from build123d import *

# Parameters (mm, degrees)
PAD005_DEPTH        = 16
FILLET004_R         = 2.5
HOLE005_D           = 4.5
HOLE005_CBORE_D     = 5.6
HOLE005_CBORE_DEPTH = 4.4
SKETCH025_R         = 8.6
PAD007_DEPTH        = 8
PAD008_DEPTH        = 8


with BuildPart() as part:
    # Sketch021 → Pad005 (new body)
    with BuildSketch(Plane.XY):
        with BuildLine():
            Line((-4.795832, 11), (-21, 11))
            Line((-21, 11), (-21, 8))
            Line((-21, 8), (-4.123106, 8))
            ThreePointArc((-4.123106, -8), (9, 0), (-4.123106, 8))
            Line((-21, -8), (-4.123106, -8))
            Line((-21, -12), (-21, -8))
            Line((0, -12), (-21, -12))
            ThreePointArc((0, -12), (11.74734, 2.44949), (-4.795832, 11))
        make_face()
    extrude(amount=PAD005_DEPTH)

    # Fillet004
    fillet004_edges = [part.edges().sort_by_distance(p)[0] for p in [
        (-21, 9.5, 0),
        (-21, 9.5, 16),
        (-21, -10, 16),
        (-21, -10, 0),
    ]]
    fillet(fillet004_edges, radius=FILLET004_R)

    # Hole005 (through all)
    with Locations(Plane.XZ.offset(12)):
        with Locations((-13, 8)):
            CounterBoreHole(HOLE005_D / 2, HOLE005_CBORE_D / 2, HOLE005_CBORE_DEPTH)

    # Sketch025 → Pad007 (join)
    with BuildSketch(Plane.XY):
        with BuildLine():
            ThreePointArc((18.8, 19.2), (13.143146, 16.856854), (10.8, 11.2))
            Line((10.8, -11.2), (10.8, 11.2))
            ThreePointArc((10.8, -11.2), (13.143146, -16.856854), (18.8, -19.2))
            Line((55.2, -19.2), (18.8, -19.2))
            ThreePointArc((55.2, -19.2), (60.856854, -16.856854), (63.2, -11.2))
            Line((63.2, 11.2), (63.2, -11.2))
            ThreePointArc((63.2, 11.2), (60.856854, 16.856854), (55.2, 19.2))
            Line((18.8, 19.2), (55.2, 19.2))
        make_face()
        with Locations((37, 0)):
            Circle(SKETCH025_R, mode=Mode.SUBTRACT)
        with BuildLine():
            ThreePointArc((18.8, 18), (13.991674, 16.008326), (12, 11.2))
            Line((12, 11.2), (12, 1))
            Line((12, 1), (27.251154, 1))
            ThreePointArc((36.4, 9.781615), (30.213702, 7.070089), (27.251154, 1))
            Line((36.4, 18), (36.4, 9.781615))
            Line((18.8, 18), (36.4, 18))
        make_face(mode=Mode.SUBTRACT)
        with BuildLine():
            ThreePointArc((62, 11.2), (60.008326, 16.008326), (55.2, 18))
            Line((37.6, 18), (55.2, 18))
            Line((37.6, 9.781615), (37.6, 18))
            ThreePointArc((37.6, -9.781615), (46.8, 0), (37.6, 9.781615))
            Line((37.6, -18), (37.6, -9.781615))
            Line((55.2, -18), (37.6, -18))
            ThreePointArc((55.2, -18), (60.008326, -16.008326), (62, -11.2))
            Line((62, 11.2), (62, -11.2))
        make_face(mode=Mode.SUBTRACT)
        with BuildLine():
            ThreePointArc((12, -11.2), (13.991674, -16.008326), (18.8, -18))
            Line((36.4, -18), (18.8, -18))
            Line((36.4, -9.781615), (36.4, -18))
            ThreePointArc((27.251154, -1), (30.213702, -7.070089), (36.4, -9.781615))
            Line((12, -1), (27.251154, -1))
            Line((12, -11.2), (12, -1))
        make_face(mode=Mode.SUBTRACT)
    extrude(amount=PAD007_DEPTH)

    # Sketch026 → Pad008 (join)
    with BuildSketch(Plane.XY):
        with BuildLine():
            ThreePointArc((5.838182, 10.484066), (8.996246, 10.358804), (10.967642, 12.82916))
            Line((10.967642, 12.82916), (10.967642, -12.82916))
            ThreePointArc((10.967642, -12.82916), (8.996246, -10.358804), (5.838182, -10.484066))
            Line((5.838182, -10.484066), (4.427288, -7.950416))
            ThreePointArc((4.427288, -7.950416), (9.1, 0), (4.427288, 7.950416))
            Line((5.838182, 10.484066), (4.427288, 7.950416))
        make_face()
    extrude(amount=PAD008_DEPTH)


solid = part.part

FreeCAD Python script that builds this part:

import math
import FreeCAD as App
import Part
import Sketcher

V = App.Vector


def edges_at(feature, points):
    """Names of the edges that pass closest to the given points."""
    edges = feature.Shape.Edges
    near = lambda p: min(range(len(edges)), key=lambda i: edges[i].distToShape(Part.Vertex(*p))[0])
    return sorted({f"Edge{near(p) + 1}" for p in points})

doc = App.newDocument("Part")
params = doc.addObject("Spreadsheet::Sheet", "Params")
for row, (alias, value) in enumerate([
    ("sketch1_radius", "9 mm"),
    ("sketch1_radius2", "12 mm"),
    ("sketch1_width", "21 mm"),
    ("sketch1_height", "3 mm"),
    ("sketch1_height2", "4 mm"),
    ("pad1_length", "16 mm"),
    ("fillet_radius", "2.5 mm"),
    ("sketch2_diameter", "4.5 mm"),
    ("hole_diameter", "4.5 mm"),
    ("hole_cbore_diameter", "5.6 mm"),
    ("hole_cbore_depth", "4.4 mm"),
    ("sketch3_radius", "8.000001 mm"),
    ("sketch3_diameter", "17.2 mm"),
    ("sketch3_radius2", "6.8 mm"),
    ("sketch3_radius3", "9.799999 mm"),
    ("sketch3_width", "36.4 mm"),
    ("pad2_length", "8 mm"),
    ("sketch4_radius", "3.5 mm"),
    ("sketch4_radius2", "9.099999 mm"),
    ("sketch4_length", "2.900001 mm"),
    ("pad3_length", "8 mm"),
], start=1):
    params.set(f"A{row}", alias)
    params.set(f"B{row}", "=" + value)
    params.setAlias(f"B{row}", alias)

body = doc.addObject("PartDesign::Body", "Body")

# Sketch on XY plane
sketch1 = body.newObject("Sketcher::SketchObject", "Sketch")
sketch1.AttachmentSupport = (doc.getObject("XY_Plane"), [""])
sketch1.MapMode = "FlatFace"
sketch1.addGeometry([
    Part.LineSegment(V(-4.8, 11, 0), V(-21, 11, 0)),  # 0
    Part.LineSegment(V(-21, 11, 0), V(-21, 8, 0)),  # 1
    Part.LineSegment(V(-21, 8, 0), V(-4.1, 8, 0)),  # 2
    Part.ArcOfCircle(Part.Circle(V(0, 0, 0), V(0, 0, 1), 9), math.radians(-117), math.radians(117)),  # 3
    Part.LineSegment(V(-4.1, -8, 0), V(-21, -8, 0)),  # 4
    Part.LineSegment(V(-21, -8, 0), V(-21, -12, 0)),  # 5
    Part.LineSegment(V(-21, -12, 0), V(0, -12, 0)),  # 6
    Part.ArcOfCircle(Part.Circle(V(0, 0, 0), V(0, 0, 1), 12), math.radians(-90), math.radians(114)),  # 7
], False)
sketch1.addConstraint([
    Sketcher.Constraint("Coincident", 0, 2, 1, 1),
    Sketcher.Constraint("Coincident", 1, 2, 2, 1),
    Sketcher.Constraint("Coincident", 2, 2, 3, 2),
    Sketcher.Constraint("Coincident", 3, 1, 4, 1),
    Sketcher.Constraint("Coincident", 4, 2, 5, 1),
    Sketcher.Constraint("Coincident", 5, 2, 6, 1),
    Sketcher.Constraint("Tangent", 6, 2, 7, 1),
    Sketcher.Constraint("Coincident", 7, 2, 0, 1),
    Sketcher.Constraint("Horizontal", 0),
    Sketcher.Constraint("Vertical", 1),
    Sketcher.Constraint("Horizontal", 2),
    Sketcher.Constraint("Horizontal", 4),
    Sketcher.Constraint("Vertical", 5),
    Sketcher.Constraint("Horizontal", 6),
    Sketcher.Constraint("Coincident", 3, 3, -1, 1),
    Sketcher.Constraint("Coincident", 7, 3, -1, 1),
    Sketcher.Constraint("Symmetric", 1, 2, 4, 2, -1),
    Sketcher.Constraint("Radius", 3, 9.0),
    Sketcher.Constraint("Radius", 7, 12.0),
    Sketcher.Constraint("DistanceX", 6, 1, 6, 2, 21.0),
    Sketcher.Constraint("DistanceY", 1, 2, 1, 1, 3.0),
    Sketcher.Constraint("DistanceY", 5, 2, 5, 1, 4.0),
])
sketch1.setExpression("Constraints[17]", "Params.sketch1_radius")
sketch1.setExpression("Constraints[18]", "Params.sketch1_radius2")
sketch1.setExpression("Constraints[19]", "Params.sketch1_width")
sketch1.setExpression("Constraints[20]", "Params.sketch1_height")
sketch1.setExpression("Constraints[21]", "Params.sketch1_height2")
pad1 = body.newObject("PartDesign::Pad", "Pad")
pad1.Profile = sketch1
pad1.setExpression("Length", "Params.pad1_length")
doc.recompute()

fillet = body.newObject("PartDesign::Fillet", "Fillet")
fillet.Base = (pad1, edges_at(pad1, [
    (-21, 9.5, 0),
    (-21, 9.5, 16),
    (-21, -10, 16),
    (-21, -10, 0),
]))
fillet.setExpression("Radius", "Params.fillet_radius")

# Sketch on XZ plane
sketch2 = body.newObject("Sketcher::SketchObject", "Sketch001")
sketch2.AttachmentSupport = (doc.getObject("XZ_Plane"), [""])
sketch2.MapMode = "FlatFace"
sketch2.AttachmentOffset = App.Placement(V(0, 0, 12), App.Rotation())
sketch2.addGeometry(Part.Circle(V(-13, 8, 0), V(0, 0, 1), 2.2), False)
sketch2.addConstraint([
    Sketcher.Constraint("Diameter", 0, 4.5),
    Sketcher.Constraint("DistanceX", 0, 3, -1, 1, 13.0),
    Sketcher.Constraint("DistanceY", -1, 1, 0, 3, 8.0),
])
sketch2.setExpression("Constraints[0]", "Params.sketch2_diameter")
doc.recompute()
hole = body.newObject("PartDesign::Hole", "Hole")
hole.Profile = sketch2
hole.ThreadType = "None"
hole.setExpression("Diameter", "Params.hole_diameter")
hole.DepthType = "ThroughAll"
hole.HoleCutType = "Counterbore"
hole.setExpression("HoleCutDiameter", "Params.hole_cbore_diameter")
hole.setExpression("HoleCutDepth", "Params.hole_cbore_depth")

# Sketch on XY plane
sketch3 = body.newObject("Sketcher::SketchObject", "Sketch002")
sketch3.AttachmentSupport = (doc.getObject("XY_Plane"), [""])
sketch3.MapMode = "FlatFace"
sketch3.addGeometry([
    Part.ArcOfCircle(Part.Circle(V(19, 11, 0), V(0, 0, 1), 8), math.radians(90), math.radians(180)),  # 0
    Part.LineSegment(V(11, 11, 0), V(11, -11, 0)),  # 1
    Part.ArcOfCircle(Part.Circle(V(19, -11, 0), V(0, 0, 1), 8), math.radians(-180), math.radians(-90)),  # 2
    Part.LineSegment(V(19, -19, 0), V(55, -19, 0)),  # 3
    Part.ArcOfCircle(Part.Circle(V(55, -11, 0), V(0, 0, 1), 8), math.radians(-90), math.radians(0)),  # 4
    Part.LineSegment(V(63, -11, 0), V(63, 11, 0)),  # 5
    Part.ArcOfCircle(Part.Circle(V(55, 11, 0), V(0, 0, 1), 8), math.radians(0), math.radians(90)),  # 6
    Part.LineSegment(V(55, 19, 0), V(19, 19, 0)),  # 7
    Part.ArcOfCircle(Part.Circle(V(19, -11, 0), V(0, 0, 1), 7), math.radians(-180), math.radians(-90)),  # 8
    Part.LineSegment(V(12, -11, 0), V(12, -1, 0)),  # 9
    Part.LineSegment(V(12, -1, 0), V(27, -1, 0)),  # 10
    Part.ArcOfCircle(Part.Circle(V(37, 0, 0), V(0, 0, 1), 10), math.radians(-174), math.radians(-94)),  # 11
    Part.LineSegment(V(36, -10, 0), V(36, -18, 0)),  # 12
    Part.LineSegment(V(36, -18, 0), V(19, -18, 0)),  # 13
    Part.ArcOfCircle(Part.Circle(V(19, 11, 0), V(0, 0, 1), 7), math.radians(90), math.radians(180)),  # 14
    Part.LineSegment(V(19, 18, 0), V(36, 18, 0)),  # 15
    Part.LineSegment(V(36, 18, 0), V(36, 10, 0)),  # 16
    Part.ArcOfCircle(Part.Circle(V(37, 0, 0), V(0, 0, 1), 10), math.radians(94), math.radians(174)),  # 17
    Part.LineSegment(V(27, 1, 0), V(12, 1, 0)),  # 18
    Part.LineSegment(V(12, 1, 0), V(12, 11, 0)),  # 19
    Part.Circle(V(37, 0, 0), V(0, 0, 1), 9),  # 20
    Part.ArcOfCircle(Part.Circle(V(55, 11, 0), V(0, 0, 1), 7), math.radians(0), math.radians(90)),  # 21
    Part.LineSegment(V(62, 11, 0), V(62, -11, 0)),  # 22
    Part.ArcOfCircle(Part.Circle(V(55, -11, 0), V(0, 0, 1), 7), math.radians(-90), math.radians(0)),  # 23
    Part.LineSegment(V(55, -18, 0), V(38, -18, 0)),  # 24
    Part.LineSegment(V(38, -18, 0), V(38, -10, 0)),  # 25
    Part.ArcOfCircle(Part.Circle(V(37, 0, 0), V(0, 0, 1), 10), math.radians(-86), math.radians(86)),  # 26
    Part.LineSegment(V(38, 10, 0), V(38, 18, 0)),  # 27
    Part.LineSegment(V(38, 18, 0), V(55, 18, 0)),  # 28
], False)
sketch3.addConstraint([
    Sketcher.Constraint("Tangent", 0, 2, 1, 1),
    Sketcher.Constraint("Tangent", 1, 2, 2, 1),
    Sketcher.Constraint("Tangent", 2, 2, 3, 1),
    Sketcher.Constraint("Tangent", 3, 2, 4, 1),
    Sketcher.Constraint("Tangent", 4, 2, 5, 1),
    Sketcher.Constraint("Tangent", 5, 2, 6, 1),
    Sketcher.Constraint("Tangent", 6, 2, 7, 1),
    Sketcher.Constraint("Tangent", 7, 2, 0, 1),
    Sketcher.Constraint("Tangent", 8, 1, 9, 1),
    Sketcher.Constraint("Coincident", 9, 2, 10, 1),
    Sketcher.Constraint("Coincident", 10, 2, 11, 1),
    Sketcher.Constraint("Coincident", 11, 2, 12, 1),
    Sketcher.Constraint("Coincident", 12, 2, 13, 1),
    Sketcher.Constraint("Tangent", 13, 2, 8, 2),
    Sketcher.Constraint("Tangent", 14, 1, 15, 1),
    Sketcher.Constraint("Coincident", 15, 2, 16, 1),
    Sketcher.Constraint("Coincident", 16, 2, 17, 1),
    Sketcher.Constraint("Coincident", 17, 2, 18, 1),
    Sketcher.Constraint("Coincident", 18, 2, 19, 1),
    Sketcher.Constraint("Tangent", 19, 2, 14, 2),
    Sketcher.Constraint("Tangent", 21, 1, 22, 1),
    Sketcher.Constraint("Tangent", 22, 2, 23, 2),
    Sketcher.Constraint("Tangent", 23, 1, 24, 1),
    Sketcher.Constraint("Coincident", 24, 2, 25, 1),
    Sketcher.Constraint("Coincident", 25, 2, 26, 1),
    Sketcher.Constraint("Coincident", 26, 2, 27, 1),
    Sketcher.Constraint("Coincident", 27, 2, 28, 1),
    Sketcher.Constraint("Tangent", 28, 2, 21, 2),
    Sketcher.Constraint("Vertical", 1),
    Sketcher.Constraint("Horizontal", 3),
    Sketcher.Constraint("Vertical", 5),
    Sketcher.Constraint("Horizontal", 7),
    Sketcher.Constraint("Vertical", 9),
    Sketcher.Constraint("Horizontal", 10),
    Sketcher.Constraint("Vertical", 12),
    Sketcher.Constraint("Horizontal", 13),
    Sketcher.Constraint("Horizontal", 15),
    Sketcher.Constraint("Vertical", 16),
    Sketcher.Constraint("Horizontal", 18),
    Sketcher.Constraint("Vertical", 19),
    Sketcher.Constraint("Vertical", 22),
    Sketcher.Constraint("Horizontal", 24),
    Sketcher.Constraint("Vertical", 25),
    Sketcher.Constraint("Vertical", 27),
    Sketcher.Constraint("Horizontal", 28),
    Sketcher.Constraint("Coincident", 8, 3, 2, 3),
    Sketcher.Constraint("Coincident", 14, 3, 0, 3),
    Sketcher.Constraint("Coincident", 17, 3, 11, 3),
    Sketcher.Constraint("Coincident", 20, 3, 11, 3),
    Sketcher.Constraint("Coincident", 21, 3, 6, 3),
    Sketcher.Constraint("Coincident", 23, 3, 4, 3),
    Sketcher.Constraint("Coincident", 26, 3, 11, 3),
    Sketcher.Constraint("Equal", 0, 2),
    Sketcher.Constraint("Equal", 2, 4),
    Sketcher.Constraint("Equal", 4, 6),
    Sketcher.Constraint("Equal", 8, 14),
    Sketcher.Constraint("Equal", 11, 17),
    Sketcher.Constraint("Equal", 14, 21),
    Sketcher.Constraint("Equal", 17, 26),
    Sketcher.Constraint("Symmetric", 12, 2, 15, 2, -1),
    Sketcher.Constraint("Symmetric", 10, 2, 17, 2, -1),
    Sketcher.Constraint("Horizontal", 11, 2, 25, 2),
    Sketcher.Constraint("Horizontal", 16, 2, 26, 2),
    Sketcher.Constraint("Equal", 15, 24),
    Sketcher.Constraint("Radius", 0, 8.000001),
    Sketcher.Constraint("Diameter", 20, 17.2),
    Sketcher.Constraint("Radius", 8, 6.8),
    Sketcher.Constraint("Radius", 11, 9.799999),
    Sketcher.Constraint("DistanceX", 3, 1, 3, 2, 36.4),
    Sketcher.Constraint("DistanceX", 13, 2, 13, 1, 17.6),
    Sketcher.Constraint("DistanceY", 1, 2, 1, 1, 22.4),
    Sketcher.Constraint("DistanceY", 9, 1, 9, 2, 10.2),
    Sketcher.Constraint("DistanceX", -1, 1, 11, 3, 36.999999),
])
sketch3.setExpression("Constraints[64]", "Params.sketch3_radius")
sketch3.setExpression("Constraints[65]", "Params.sketch3_diameter")
sketch3.setExpression("Constraints[66]", "Params.sketch3_radius2")
sketch3.setExpression("Constraints[67]", "Params.sketch3_radius3")
sketch3.setExpression("Constraints[68]", "Params.sketch3_width")
pad2 = body.newObject("PartDesign::Pad", "Pad001")
pad2.Profile = sketch3
pad2.setExpression("Length", "Params.pad2_length")

# Sketch on XY plane
sketch4 = body.newObject("Sketcher::SketchObject", "Sketch003")
sketch4.AttachmentSupport = (doc.getObject("XY_Plane"), [""])
sketch4.MapMode = "FlatFace"
sketch4.addGeometry([
    Part.ArcOfCircle(Part.Circle(V(7.5, 13.5, 0), V(0, 0, 1), 3.5), math.radians(-119), math.radians(-12)),  # 0
    Part.LineSegment(V(5.8, 10.5, 0), V(4.4, 8, 0)),  # 1
    Part.ArcOfCircle(Part.Circle(V(0, 0, 0), V(0, 0, 1), 9.1), math.radians(-61), math.radians(61)),  # 2
    Part.LineSegment(V(4.4, -8, 0), V(5.8, -10.5, 0)),  # 3
    Part.ArcOfCircle(Part.Circle(V(7.5, -13.5, 0), V(0, 0, 1), 3.5), math.radians(12), math.radians(119)),  # 4
    Part.LineSegment(V(11, -12.8, 0), V(11, 12.8, 0)),  # 5
], False)
sketch4.addConstraint([
    Sketcher.Constraint("Coincident", 0, 1, 1, 1),
    Sketcher.Constraint("Coincident", 1, 2, 2, 2),
    Sketcher.Constraint("Coincident", 2, 1, 3, 1),
    Sketcher.Constraint("Coincident", 3, 2, 4, 2),
    Sketcher.Constraint("Coincident", 4, 1, 5, 1),
    Sketcher.Constraint("Coincident", 5, 2, 0, 2),
    Sketcher.Constraint("Vertical", 5),
    Sketcher.Constraint("Coincident", 2, 3, -1, 1),
    Sketcher.Constraint("Equal", 0, 4),
    Sketcher.Constraint("Symmetric", 0, 3, 4, 3, -1),
    Sketcher.Constraint("Vertical", 1, 2, 2, 1),
    Sketcher.Constraint("Vertical", 0, 1, 3, 2),
    Sketcher.Constraint("Radius", 0, 3.5),
    Sketcher.Constraint("Radius", 2, 9.099999),
    Sketcher.Constraint("Distance", 1, 2.900001),
    Sketcher.Constraint("DistanceY", 5, 1, 5, 2, 25.65832),
    Sketcher.Constraint("DistanceY", -1, 1, 0, 3, 13.541918),
    Sketcher.Constraint("DistanceX", -1, 1, 0, 1, 5.838182),
    Sketcher.Constraint("DistanceY", 1, 2, 0, 1, 2.53365),
])
sketch4.setExpression("Constraints[12]", "Params.sketch4_radius")
sketch4.setExpression("Constraints[13]", "Params.sketch4_radius2")
sketch4.setExpression("Constraints[14]", "Params.sketch4_length")
pad3 = body.newObject("PartDesign::Pad", "Pad002")
pad3.Profile = sketch4
pad3.setExpression("Length", "Params.pad3_length")

doc.recompute()
